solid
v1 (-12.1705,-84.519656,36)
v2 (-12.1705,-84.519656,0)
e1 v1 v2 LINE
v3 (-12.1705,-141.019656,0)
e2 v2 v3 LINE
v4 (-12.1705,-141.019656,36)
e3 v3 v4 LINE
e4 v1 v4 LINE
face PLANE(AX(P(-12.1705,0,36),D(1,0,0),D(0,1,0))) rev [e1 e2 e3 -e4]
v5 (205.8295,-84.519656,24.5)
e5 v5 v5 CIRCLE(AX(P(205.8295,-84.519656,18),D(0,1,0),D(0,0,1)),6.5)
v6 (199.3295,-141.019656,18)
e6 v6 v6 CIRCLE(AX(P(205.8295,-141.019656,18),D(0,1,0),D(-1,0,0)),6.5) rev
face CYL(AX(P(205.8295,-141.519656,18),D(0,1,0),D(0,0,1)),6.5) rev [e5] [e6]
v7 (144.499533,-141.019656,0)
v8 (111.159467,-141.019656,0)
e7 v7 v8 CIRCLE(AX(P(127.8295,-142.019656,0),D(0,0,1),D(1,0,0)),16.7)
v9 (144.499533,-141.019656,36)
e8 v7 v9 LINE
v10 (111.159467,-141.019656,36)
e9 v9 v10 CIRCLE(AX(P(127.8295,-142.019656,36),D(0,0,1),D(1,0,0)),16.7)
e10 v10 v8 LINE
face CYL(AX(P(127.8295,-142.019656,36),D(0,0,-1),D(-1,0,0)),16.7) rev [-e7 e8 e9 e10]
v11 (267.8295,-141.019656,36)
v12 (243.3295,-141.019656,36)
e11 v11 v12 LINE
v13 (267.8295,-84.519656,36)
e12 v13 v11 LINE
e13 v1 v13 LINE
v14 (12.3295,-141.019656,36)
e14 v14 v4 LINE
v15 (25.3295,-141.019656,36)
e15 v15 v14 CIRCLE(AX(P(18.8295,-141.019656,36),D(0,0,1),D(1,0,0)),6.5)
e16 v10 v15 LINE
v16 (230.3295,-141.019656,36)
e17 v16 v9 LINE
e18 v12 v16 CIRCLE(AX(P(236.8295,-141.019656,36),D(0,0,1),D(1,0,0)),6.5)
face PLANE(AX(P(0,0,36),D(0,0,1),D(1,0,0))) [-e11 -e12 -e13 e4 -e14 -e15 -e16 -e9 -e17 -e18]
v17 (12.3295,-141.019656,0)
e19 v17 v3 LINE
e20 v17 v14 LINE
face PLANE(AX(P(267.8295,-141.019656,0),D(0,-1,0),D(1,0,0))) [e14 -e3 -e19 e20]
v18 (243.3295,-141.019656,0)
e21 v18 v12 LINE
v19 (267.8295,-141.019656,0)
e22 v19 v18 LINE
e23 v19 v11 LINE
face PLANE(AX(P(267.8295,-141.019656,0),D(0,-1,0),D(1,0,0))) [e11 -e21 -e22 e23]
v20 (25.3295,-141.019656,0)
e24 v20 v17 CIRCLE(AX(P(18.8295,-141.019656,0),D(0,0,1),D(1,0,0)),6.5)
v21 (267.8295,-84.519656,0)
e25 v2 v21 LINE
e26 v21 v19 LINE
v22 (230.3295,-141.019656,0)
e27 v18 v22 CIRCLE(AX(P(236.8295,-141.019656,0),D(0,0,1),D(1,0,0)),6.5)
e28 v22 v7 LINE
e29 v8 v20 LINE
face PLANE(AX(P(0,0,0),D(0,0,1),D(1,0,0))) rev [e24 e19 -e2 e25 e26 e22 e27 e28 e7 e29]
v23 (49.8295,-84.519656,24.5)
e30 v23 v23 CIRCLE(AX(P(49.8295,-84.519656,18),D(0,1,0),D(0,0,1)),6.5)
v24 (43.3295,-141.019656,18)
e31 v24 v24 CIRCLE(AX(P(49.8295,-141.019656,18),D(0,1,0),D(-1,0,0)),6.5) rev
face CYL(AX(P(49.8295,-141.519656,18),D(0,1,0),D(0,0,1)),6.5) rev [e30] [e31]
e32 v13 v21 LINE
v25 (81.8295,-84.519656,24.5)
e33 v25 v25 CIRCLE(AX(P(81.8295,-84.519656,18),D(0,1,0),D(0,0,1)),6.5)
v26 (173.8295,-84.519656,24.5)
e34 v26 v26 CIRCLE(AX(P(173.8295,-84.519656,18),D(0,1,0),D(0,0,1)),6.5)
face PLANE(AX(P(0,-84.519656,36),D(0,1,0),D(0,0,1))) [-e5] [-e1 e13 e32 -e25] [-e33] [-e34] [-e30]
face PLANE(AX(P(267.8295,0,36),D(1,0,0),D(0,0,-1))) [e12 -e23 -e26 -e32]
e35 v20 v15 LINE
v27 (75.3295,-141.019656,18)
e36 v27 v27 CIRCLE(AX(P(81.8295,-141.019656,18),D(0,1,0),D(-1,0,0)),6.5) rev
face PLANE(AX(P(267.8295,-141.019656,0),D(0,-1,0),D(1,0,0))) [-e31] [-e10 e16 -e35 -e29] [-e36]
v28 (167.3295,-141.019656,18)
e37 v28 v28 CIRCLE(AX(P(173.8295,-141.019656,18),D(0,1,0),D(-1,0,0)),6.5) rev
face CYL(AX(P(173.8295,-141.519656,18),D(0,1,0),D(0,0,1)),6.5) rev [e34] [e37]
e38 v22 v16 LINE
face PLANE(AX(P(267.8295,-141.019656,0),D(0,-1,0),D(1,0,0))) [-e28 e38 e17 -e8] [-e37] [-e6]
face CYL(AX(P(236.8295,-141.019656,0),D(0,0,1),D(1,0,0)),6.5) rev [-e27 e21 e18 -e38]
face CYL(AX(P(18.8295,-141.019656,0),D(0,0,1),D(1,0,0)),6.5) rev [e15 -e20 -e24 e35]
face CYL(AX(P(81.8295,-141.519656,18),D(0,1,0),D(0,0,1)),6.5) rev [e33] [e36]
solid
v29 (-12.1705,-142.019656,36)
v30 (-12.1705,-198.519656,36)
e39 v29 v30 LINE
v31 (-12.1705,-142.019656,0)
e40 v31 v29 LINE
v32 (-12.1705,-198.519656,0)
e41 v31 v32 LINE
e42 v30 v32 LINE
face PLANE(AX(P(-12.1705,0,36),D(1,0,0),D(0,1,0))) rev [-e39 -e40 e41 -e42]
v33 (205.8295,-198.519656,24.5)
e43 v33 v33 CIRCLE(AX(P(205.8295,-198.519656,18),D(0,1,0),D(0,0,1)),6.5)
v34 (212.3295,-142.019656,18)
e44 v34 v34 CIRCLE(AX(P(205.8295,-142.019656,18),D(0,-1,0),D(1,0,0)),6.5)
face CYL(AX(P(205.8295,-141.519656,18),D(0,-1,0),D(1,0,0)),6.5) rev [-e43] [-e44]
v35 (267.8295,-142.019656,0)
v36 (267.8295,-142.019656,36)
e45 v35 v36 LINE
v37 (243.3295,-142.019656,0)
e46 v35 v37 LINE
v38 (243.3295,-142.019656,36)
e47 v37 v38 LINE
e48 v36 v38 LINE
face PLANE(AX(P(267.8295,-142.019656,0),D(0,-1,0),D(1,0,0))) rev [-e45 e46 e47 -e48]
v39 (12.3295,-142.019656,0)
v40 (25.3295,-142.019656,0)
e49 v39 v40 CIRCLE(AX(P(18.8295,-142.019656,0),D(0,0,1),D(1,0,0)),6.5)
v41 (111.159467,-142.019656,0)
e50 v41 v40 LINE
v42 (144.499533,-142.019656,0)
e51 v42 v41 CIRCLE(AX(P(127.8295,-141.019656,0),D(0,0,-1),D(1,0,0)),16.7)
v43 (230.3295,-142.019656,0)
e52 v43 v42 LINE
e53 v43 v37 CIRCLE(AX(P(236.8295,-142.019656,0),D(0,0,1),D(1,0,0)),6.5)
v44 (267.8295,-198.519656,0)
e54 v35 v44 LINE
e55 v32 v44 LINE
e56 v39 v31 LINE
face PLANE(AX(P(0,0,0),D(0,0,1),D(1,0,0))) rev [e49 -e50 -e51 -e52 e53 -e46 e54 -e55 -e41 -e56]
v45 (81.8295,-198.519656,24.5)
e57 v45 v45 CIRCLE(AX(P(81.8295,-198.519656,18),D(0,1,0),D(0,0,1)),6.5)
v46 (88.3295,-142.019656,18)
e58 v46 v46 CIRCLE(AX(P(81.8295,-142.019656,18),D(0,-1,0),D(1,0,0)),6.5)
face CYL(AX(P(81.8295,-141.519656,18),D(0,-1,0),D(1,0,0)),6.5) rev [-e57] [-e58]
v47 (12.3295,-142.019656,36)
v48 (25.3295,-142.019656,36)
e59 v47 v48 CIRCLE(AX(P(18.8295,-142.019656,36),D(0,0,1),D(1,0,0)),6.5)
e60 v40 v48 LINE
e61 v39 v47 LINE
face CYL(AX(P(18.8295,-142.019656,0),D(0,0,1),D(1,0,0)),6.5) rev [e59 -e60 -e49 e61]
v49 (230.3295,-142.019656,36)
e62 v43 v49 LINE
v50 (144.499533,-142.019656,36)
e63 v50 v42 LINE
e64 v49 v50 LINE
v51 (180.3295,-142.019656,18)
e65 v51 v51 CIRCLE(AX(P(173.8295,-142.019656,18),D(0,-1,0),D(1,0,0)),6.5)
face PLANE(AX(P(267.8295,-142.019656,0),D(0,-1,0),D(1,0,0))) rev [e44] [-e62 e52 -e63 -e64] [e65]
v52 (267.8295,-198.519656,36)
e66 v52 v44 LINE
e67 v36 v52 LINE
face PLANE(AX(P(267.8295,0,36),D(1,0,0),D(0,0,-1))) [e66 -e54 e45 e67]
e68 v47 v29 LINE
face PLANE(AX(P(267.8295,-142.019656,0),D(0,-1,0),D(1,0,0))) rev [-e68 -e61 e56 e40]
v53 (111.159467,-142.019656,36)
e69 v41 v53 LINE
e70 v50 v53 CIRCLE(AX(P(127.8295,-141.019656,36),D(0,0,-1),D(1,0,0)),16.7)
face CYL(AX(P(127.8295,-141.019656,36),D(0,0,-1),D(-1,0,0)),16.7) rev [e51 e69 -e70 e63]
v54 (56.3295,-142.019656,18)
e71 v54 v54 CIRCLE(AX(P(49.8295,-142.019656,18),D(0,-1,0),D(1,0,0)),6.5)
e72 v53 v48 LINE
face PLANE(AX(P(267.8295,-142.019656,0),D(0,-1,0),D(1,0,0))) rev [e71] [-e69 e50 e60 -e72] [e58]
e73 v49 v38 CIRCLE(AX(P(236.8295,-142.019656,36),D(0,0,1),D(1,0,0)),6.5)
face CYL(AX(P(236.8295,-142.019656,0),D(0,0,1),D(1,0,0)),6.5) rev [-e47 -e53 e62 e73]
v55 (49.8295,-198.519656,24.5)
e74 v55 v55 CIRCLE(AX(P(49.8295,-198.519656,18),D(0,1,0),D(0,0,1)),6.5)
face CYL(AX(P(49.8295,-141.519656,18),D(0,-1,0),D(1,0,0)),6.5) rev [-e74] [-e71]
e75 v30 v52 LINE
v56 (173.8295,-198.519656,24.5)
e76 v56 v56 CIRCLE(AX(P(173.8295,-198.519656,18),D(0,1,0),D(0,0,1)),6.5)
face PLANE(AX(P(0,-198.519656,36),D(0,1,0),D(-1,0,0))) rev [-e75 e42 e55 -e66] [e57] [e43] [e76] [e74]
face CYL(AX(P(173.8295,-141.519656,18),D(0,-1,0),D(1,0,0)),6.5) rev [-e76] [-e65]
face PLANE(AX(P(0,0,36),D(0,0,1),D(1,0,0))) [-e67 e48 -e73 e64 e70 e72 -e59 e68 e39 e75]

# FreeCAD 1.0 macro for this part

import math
import FreeCAD as App
import Part
import Sketcher


def add_polygon(sketch, points):
    """Adds a closed chain of lines whose ends are joined by coincident constraints."""
    first, n = sketch.GeometryCount, len(points)
    for a, b in zip(points, points[1:] + points[:1]):
        sketch.addGeometry(Part.LineSegment(App.Vector(*a, 0), App.Vector(*b, 0)), False)
    for i in range(n):
        sketch.addConstraint(Sketcher.Constraint("Coincident", first + i, 2, first + (i + 1) % n, 1))

doc = App.newDocument("Part")
params = doc.addObject("Spreadsheet::Sheet", "Params")
for row, (alias, value) in enumerate([
    ("sketch1_radius", "16.7 mm"),
    ("sketch1_width", "280 mm"),
    ("sketch1_height", "57.5 mm"),
    ("pad1_length", "36 mm"),
    ("sketch2_height", "36 mm"),
    ("sketch2_width", "0.5 mm"),
    ("sketch3_diameter", "13 mm"),
    ("sketch4_height", "36 mm"),
    ("sketch4_width", "0.5 mm"),
    ("sketch5_radius", "6.5 mm"),
], start=1):
    params.set(f"A{row}", alias)
    params.set(f"B{row}", "=" + value)
    params.setAlias(f"B{row}", alias)

body = doc.addObject("PartDesign::Body", "Body")
body.AllowCompound = True

sketch1 = body.newObject("Sketcher::SketchObject", "Sketch")
sketch1.AttachmentSupport = (doc.getObject("XY_Plane"), [""])
sketch1.MapMode = "FlatFace"
sketch1.addGeometry(Part.LineSegment(App.Vector(268, -85, 0), App.Vector(-12, -85, 0)), False)
sketch1.addGeometry(Part.LineSegment(App.Vector(-12, -85, 0), App.Vector(-12, -142, 0)), False)
sketch1.addGeometry(Part.LineSegment(App.Vector(-12, -142, 0), App.Vector(111, -142, 0)), False)
sketch1.addGeometry(Part.ArcOfCircle(Part.Circle(App.Vector(128, -142, 0), App.Vector(0, 0, 1), 17), math.radians(0), math.radians(180)), False)
sketch1.addGeometry(Part.LineSegment(App.Vector(145, -142, 0), App.Vector(268, -142, 0)), False)
sketch1.addGeometry(Part.LineSegment(App.Vector(268, -142, 0), App.Vector(268, -85, 0)), False)
sketch1.addConstraint(Sketcher.Constraint("Coincident", 0, 2, 1, 1))
sketch1.addConstraint(Sketcher.Constraint("Coincident", 1, 2, 2, 1))
sketch1.addConstraint(Sketcher.Constraint("Coincident", 2, 2, 3, 2))
sketch1.addConstraint(Sketcher.Constraint("Coincident", 3, 1, 4, 1))
sketch1.addConstraint(Sketcher.Constraint("Coincident", 4, 2, 5, 1))
sketch1.addConstraint(Sketcher.Constraint("Coincident", 5, 2, 0, 1))
sketch1.addConstraint(Sketcher.Constraint("Horizontal", 0))
sketch1.addConstraint(Sketcher.Constraint("Vertical", 1))
sketch1.addConstraint(Sketcher.Constraint("Horizontal", 2))
sketch1.addConstraint(Sketcher.Constraint("Horizontal", 4))
sketch1.addConstraint(Sketcher.Constraint("Vertical", 5))
sketch1.addConstraint(Sketcher.Constraint("Horizontal", 3, 3, 1, 2))
sketch1.addConstraint(Sketcher.Constraint("Horizontal", 2, 2, 3, 1))
sketch1.addConstraint(Sketcher.Constraint("Equal", 2, 4))
sketch1.addConstraint(Sketcher.Constraint("Radius", 3, 16.7))
sketch1.addConstraint(Sketcher.Constraint("DistanceX", 0, 2, 0, 1, 280.0))
sketch1.addConstraint(Sketcher.Constraint("DistanceY", 1, 2, 1, 1, 57.5))
sketch1.addConstraint(Sketcher.Constraint("DistanceX", -1, 1, 3, 3, 127.8295))
sketch1.addConstraint(Sketcher.Constraint("DistanceY", 3, 3, -1, 1, 142.019656))
sketch1.setExpression("Constraints[14]", "Params.sketch1_radius")
sketch1.setExpression("Constraints[15]", "Params.sketch1_width")
sketch1.setExpression("Constraints[16]", "Params.sketch1_height")
pad1 = body.newObject("PartDesign::Pad", "Pad")
pad1.Profile = sketch1
pad1.setExpression("Length", "Params.pad1_length")

sketch2 = body.newObject("Sketcher::SketchObject", "Sketch001")
sketch2.AttachmentSupport = (doc.getObject("YZ_Plane"), [""])
sketch2.MapMode = "FlatFace"
sketch2.AttachmentOffset = App.Placement(App.Vector(0, 0, -12.1705), App.Rotation())
add_polygon(sketch2, [(-141.5, 0), (-142, 0), (-142, 36), (-141.5, 36)])
sketch2.addConstraint(Sketcher.Constraint("Horizontal", 0))
sketch2.addConstraint(Sketcher.Constraint("Vertical", 1))
sketch2.addConstraint(Sketcher.Constraint("Horizontal", 2))
sketch2.addConstraint(Sketcher.Constraint("Vertical", 3))
sketch2.addConstraint(Sketcher.Constraint("PointOnObject", 0, 2, -1))
sketch2.addConstraint(Sketcher.Constraint("DistanceY", 1, 1, 1, 2, 36.0))
sketch2.addConstraint(Sketcher.Constraint("DistanceX", 0, 2, 0, 1, 0.5))
sketch2.addConstraint(Sketcher.Constraint("DistanceX", 0, 2, -1, 1, 142.019656))
sketch2.setExpression("Constraints[9]", "Params.sketch2_height")
sketch2.setExpression("Constraints[10]", "Params.sketch2_width")
pocket1 = body.newObject("PartDesign::Pocket", "Pocket")
pocket1.Profile = sketch2
pocket1.Type = "ThroughAll"
pocket1.Reversed = True

sketch3 = body.newObject("Sketcher::SketchObject", "Sketch002")
sketch3.AttachmentSupport = (doc.getObject("XZ_Plane"), [""])
sketch3.MapMode = "FlatFace"
sketch3.AttachmentOffset = App.Placement(App.Vector(0, 0, 84.519656), App.Rotation())
sketch3.addGeometry(Part.Circle(App.Vector(206, 18, 0), App.Vector(0, 0, 1), 6), False)
sketch3.addGeometry(Part.Circle(App.Vector(174, 18, 0), App.Vector(0, 0, 1), 6), False)
sketch3.addGeometry(Part.Circle(App.Vector(82, 18, 0), App.Vector(0, 0, 1), 6), False)
sketch3.addGeometry(Part.Circle(App.Vector(50, 18, 0), App.Vector(0, 0, 1), 6), False)
sketch3.addConstraint(Sketcher.Constraint("Equal", 0, 1))
sketch3.addConstraint(Sketcher.Constraint("Equal", 1, 2))
sketch3.addConstraint(Sketcher.Constraint("Equal", 2, 3))
sketch3.addConstraint(Sketcher.Constraint("Horizontal", 0, 3, 1, 3))
sketch3.addConstraint(Sketcher.Constraint("Horizontal", 1, 3, 2, 3))
sketch3.addConstraint(Sketcher.Constraint("Horizontal", 2, 3, 3, 3))
sketch3.addConstraint(Sketcher.Constraint("Diameter", 0, 13.0))
sketch3.addConstraint(Sketcher.Constraint("DistanceY", -1, 1, 0, 3, 18.0))
sketch3.addConstraint(Sketcher.Constraint("DistanceX", 1, 3, 0, 3, 32.0))
sketch3.addConstraint(Sketcher.Constraint("DistanceX", 2, 3, 1, 3, 92.0))
sketch3.addConstraint(Sketcher.Constraint("DistanceX", 3, 3, 2, 3, 32.0))
sketch3.addConstraint(Sketcher.Constraint("DistanceX", -1, 1, 0, 3, 205.8295))
sketch3.setExpression("Constraints[6]", "Params.sketch3_diameter")
pocket2 = body.newObject("PartDesign::Pocket", "Pocket001")
pocket2.Profile = sketch3
pocket2.Type = "ThroughAll"
pocket2.Reversed = True
doc.recompute()

datumplane = body.newObject("PartDesign::Plane", "DatumPlane")
datumplane.AttachmentSupport = (doc.getObject("XZ_Plane"), [""])
datumplane.MapMode = "FlatFace"
datumplane.AttachmentOffset = App.Placement(App.Vector(0, 0, 141.519656), App.Rotation())
mirrored = body.newObject("PartDesign::Mirrored", "Mirrored")
mirrored.Originals = [pad1, pocket1, pocket2]
mirrored.MirrorPlane = (datumplane, [""])
body.Tip = mirrored

sketch4 = body.newObject("Sketcher::SketchObject", "Sketch003")
sketch4.AttachmentSupport = (doc.getObject("YZ_Plane"), [""])
sketch4.MapMode = "FlatFace"
sketch4.AttachmentOffset = App.Placement(App.Vector(0, 0, -12.1705), App.Rotation())
add_polygon(sketch4, [(-141.5, 0), (-142, 0), (-142, 36), (-141.5, 36)])
sketch4.addConstraint(Sketcher.Constraint("Horizontal", 0))
sketch4.addConstraint(Sketcher.Constraint("Vertical", 1))
sketch4.addConstraint(Sketcher.Constraint("Horizontal", 2))
sketch4.addConstraint(Sketcher.Constraint("Vertical", 3))
sketch4.addConstraint(Sketcher.Constraint("PointOnObject", 0, 2, -1))
sketch4.addConstraint(Sketcher.Constraint("DistanceY", 1, 1, 1, 2, 36.0))
sketch4.addConstraint(Sketcher.Constraint("DistanceX", 0, 2, 0, 1, 0.5))
sketch4.addConstraint(Sketcher.Constraint("DistanceX", 0, 2, -1, 1, 142.019656))
sketch4.setExpression("Constraints[9]", "Params.sketch4_height")
sketch4.setExpression("Constraints[10]", "Params.sketch4_width")
pocket3 = body.newObject("PartDesign::Pocket", "Pocket002")
pocket3.Profile = sketch4
pocket3.Type = "ThroughAll"
pocket3.Reversed = True

sketch5 = body.newObject("Sketcher::SketchObject", "Sketch004")
sketch5.AttachmentSupport = (doc.getObject("XY_Plane"), [""])
sketch5.MapMode = "FlatFace"
sketch5.AttachmentOffset = App.Placement(App.Vector(0, 0, 36), App.Rotation())
sketch5.addGeometry(Part.ArcOfCircle(Part.Circle(App.Vector(19, -141, 0), App.Vector(0, 0, 1), 6), math.radians(0), math.radians(180)), False)
sketch5.addGeometry(Part.LineSegment(App.Vector(12, -141, 0), App.Vector(25, -141, 0)), False)
sketch5.addGeometry(Part.ArcOfCircle(Part.Circle(App.Vector(237, -141, 0), App.Vector(0, 0, 1), 6), math.radians(0), math.radians(180)), False)
sketch5.addGeometry(Part.LineSegment(App.Vector(230, -141, 0), App.Vector(243, -141, 0)), False)
sketch5.addGeometry(Part.LineSegment(App.Vector(25, -142, 0), App.Vector(12, -142, 0)), False)
sketch5.addGeometry(Part.ArcOfCircle(Part.Circle(App.Vector(19, -142, 0), App.Vector(0, 0, 1), 6), math.radians(180), math.radians(360)), False)
sketch5.addGeometry(Part.LineSegment(App.Vector(243, -142, 0), App.Vector(230, -142, 0)), False)
sketch5.addGeometry(Part.ArcOfCircle(Part.Circle(App.Vector(237, -142, 0), App.Vector(0, 0, 1), 6), math.radians(180), math.radians(360)), False)
sketch5.addConstraint(Sketcher.Constraint("Coincident", 0, 1, 1, 2))
sketch5.addConstraint(Sketcher.Constraint("Coincident", 1, 1, 0, 2))
sketch5.addConstraint(Sketcher.Constraint("Coincident", 2, 1, 3, 2))
sketch5.addConstraint(Sketcher.Constraint("Coincident", 3, 1, 2, 2))
sketch5.addConstraint(Sketcher.Constraint("Coincident", 4, 1, 5, 2))
sketch5.addConstraint(Sketcher.Constraint("Coincident", 5, 1, 4, 2))
sketch5.addConstraint(Sketcher.Constraint("Coincident", 6, 1, 7, 2))
sketch5.addConstraint(Sketcher.Constraint("Coincident", 7, 1, 6, 2))
sketch5.addConstraint(Sketcher.Constraint("Horizontal", 1))
sketch5.addConstraint(Sketcher.Constraint("Horizontal", 3))
sketch5.addConstraint(Sketcher.Constraint("Horizontal", 4))
sketch5.addConstraint(Sketcher.Constraint("Horizontal", 6))
sketch5.addConstraint(Sketcher.Constraint("Equal", 0, 2))
sketch5.addConstraint(Sketcher.Constraint("Equal", 2, 5))
sketch5.addConstraint(Sketcher.Constraint("Equal", 5, 7))
sketch5.addConstraint(Sketcher.Constraint("Horizontal", 0, 3, 2, 3))
sketch5.addConstraint(Sketcher.Constraint("Horizontal", 5, 3, 7, 3))
sketch5.addConstraint(Sketcher.Constraint("Horizontal", 2, 3, 0, 1))
sketch5.addConstraint(Sketcher.Constraint("Horizontal", 1, 1, 2, 1))
sketch5.addConstraint(Sketcher.Constraint("Horizontal", 7, 3, 4, 1))
sketch5.addConstraint(Sketcher.Constraint("Horizontal", 5, 1, 6, 1))
sketch5.addConstraint(Sketcher.Constraint("Vertical", 0, 3, 5, 3))
sketch5.addConstraint(Sketcher.Constraint("Vertical", 2, 3, 7, 3))
sketch5.addConstraint(Sketcher.Constraint("Radius", 0, 6.5))
sketch5.addConstraint(Sketcher.Constraint("DistanceX", 0, 3, 2, 3, 218.0))
sketch5.addConstraint(Sketcher.Constraint("DistanceY", 5, 3, 0, 3, 1.0))
sketch5.addConstraint(Sketcher.Constraint("DistanceX", -1, 1, 0, 3, 18.8295))
sketch5.addConstraint(Sketcher.Constraint("DistanceY", 0, 3, -1, 1, 141.019656))
sketch5.setExpression("Constraints[23]", "Params.sketch5_radius")
pocket4 = body.newObject("PartDesign::Pocket", "Pocket003")
pocket4.Profile = sketch5
pocket4.Type = "ThroughAll"

doc.recompute()
